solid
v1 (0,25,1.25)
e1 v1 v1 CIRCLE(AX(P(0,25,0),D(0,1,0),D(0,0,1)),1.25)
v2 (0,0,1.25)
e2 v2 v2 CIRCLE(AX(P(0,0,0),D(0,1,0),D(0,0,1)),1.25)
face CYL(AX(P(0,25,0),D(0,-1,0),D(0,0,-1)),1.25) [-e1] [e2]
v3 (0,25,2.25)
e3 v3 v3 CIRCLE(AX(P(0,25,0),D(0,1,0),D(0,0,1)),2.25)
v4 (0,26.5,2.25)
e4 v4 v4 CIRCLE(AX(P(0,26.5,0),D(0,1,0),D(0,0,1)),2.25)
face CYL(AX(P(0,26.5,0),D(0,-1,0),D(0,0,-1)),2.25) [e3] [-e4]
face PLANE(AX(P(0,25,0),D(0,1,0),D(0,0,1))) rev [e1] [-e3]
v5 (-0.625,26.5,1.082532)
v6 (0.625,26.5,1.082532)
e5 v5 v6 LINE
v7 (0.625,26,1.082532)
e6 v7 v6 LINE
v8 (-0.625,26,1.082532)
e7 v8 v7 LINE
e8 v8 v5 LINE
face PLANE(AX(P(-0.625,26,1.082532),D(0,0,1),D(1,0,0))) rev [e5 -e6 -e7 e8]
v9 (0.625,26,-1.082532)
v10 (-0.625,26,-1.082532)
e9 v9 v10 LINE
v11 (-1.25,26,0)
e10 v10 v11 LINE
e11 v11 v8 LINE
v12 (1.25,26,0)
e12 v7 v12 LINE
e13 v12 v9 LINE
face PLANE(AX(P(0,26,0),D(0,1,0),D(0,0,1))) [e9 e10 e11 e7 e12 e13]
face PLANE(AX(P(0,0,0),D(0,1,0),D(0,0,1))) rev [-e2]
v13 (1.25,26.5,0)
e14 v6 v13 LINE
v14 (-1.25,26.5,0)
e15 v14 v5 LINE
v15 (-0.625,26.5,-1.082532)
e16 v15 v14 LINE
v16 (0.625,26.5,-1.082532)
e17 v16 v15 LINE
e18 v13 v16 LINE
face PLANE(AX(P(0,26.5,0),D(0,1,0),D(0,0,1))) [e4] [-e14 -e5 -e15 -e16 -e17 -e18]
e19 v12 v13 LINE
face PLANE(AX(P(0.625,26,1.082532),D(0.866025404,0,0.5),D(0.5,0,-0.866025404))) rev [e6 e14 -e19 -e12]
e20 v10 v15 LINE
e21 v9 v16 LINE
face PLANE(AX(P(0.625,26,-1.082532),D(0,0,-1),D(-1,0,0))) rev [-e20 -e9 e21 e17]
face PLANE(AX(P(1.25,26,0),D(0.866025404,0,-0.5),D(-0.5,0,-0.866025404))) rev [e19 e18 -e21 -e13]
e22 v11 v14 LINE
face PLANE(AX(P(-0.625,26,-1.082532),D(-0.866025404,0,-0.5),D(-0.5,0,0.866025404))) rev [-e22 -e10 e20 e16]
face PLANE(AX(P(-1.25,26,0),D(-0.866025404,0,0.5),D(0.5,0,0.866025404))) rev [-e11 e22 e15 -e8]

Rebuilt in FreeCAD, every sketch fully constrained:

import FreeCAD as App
import Part
import Sketcher

V = App.Vector
Q = App.Units.Quantity


def add_polygon(sketch, points):
    """Adds a closed chain of lines whose ends are joined by coincident constraints."""
    first, n = sketch.GeometryCount, len(points)
    for a, b in zip(points, points[1:] + points[:1]):
        sketch.addGeometry(Part.LineSegment(App.Vector(*a, 0), App.Vector(*b, 0)), False)
    for i in range(n):
        sketch.addConstraint(Sketcher.Constraint("Coincident", first + i, 2, first + (i + 1) % n, 1))

doc = App.newDocument("Part")
body = doc.addObject("PartDesign::Body", "Body")

# Sketch on XZ plane
sketch1 = doc.addObject("Sketcher::SketchObject", "Sketch")
body.addObject(sketch1)
sketch1.AttachmentSupport = (doc.XZ_Plane, [""])
sketch1.MapMode = "FlatFace"
sketch1.addGeometry(Part.Circle(V(0, 0, 0), V(0, 0, 1), 1.2), False)
sketch1.addConstraint([
    Sketcher.Constraint("Coincident", 0, 3, -1, 1),
    Sketcher.Constraint("Diameter", 0, Q("2.5 mm")),
])
pad1 = doc.addObject("PartDesign::Pad", "Pad")
body.addObject(pad1)
pad1.Profile = sketch1
pad1.Length = 25
pad1.Reversed = True

# Sketch on XZ plane
sketch2 = doc.addObject("Sketcher::SketchObject", "Sketch001")
body.addObject(sketch2)
sketch2.AttachmentSupport = (doc.XZ_Plane, [""])
sketch2.MapMode = "FlatFace"
sketch2.AttachmentOffset = App.Placement(V(0, 0, -25), App.Rotation())
sketch2.addGeometry(Part.Circle(V(0, 0, 0), V(0, 0, 1), 2.2), False)
sketch2.addConstraint([
    Sketcher.Constraint("Coincident", 0, 3, -1, 1),
    Sketcher.Constraint("Diameter", 0, Q("4.5 mm")),
])
pad2 = doc.addObject("PartDesign::Pad", "Pad001")
body.addObject(pad2)
pad2.Profile = sketch2
pad2.Length = 1.5
pad2.Reversed = True

# Sketch on XZ plane
sketch3 = doc.addObject("Sketcher::SketchObject", "Sketch002")
body.addObject(sketch3)
sketch3.AttachmentSupport = (doc.XZ_Plane, [""])
sketch3.MapMode = "FlatFace"
sketch3.AttachmentOffset = App.Placement(V(0, 0, -26.5), App.Rotation())
add_polygon(sketch3, [(1.2, 0), (0.6, -1.1), (-0.6, -1.1), (-1.2, 0), (-0.6, 1.1), (0.6, 1.1)])  # lines 0-5
sketch3.addConstraint([
    Sketcher.Constraint("Horizontal", 1),
    Sketcher.Constraint("Horizontal", 4),
    Sketcher.Constraint("Symmetric", 0, 2, 3, 2, -1, 1),
    Sketcher.Constraint("Symmetric", 2, 2, 5, 2, -1, 1),
    Sketcher.Constraint("PointOnObject", 2, 2, -1),
    Sketcher.Constraint("Parallel", 2, 5),
    Sketcher.Constraint("Vertical", 1, 2, 3, 2),
    Sketcher.Constraint("Angle", 0, Q("-120 deg")),
    Sketcher.Constraint("DistanceX", 1, 2, 1, 1, Q("1.25 mm")),
    Sketcher.Constraint("DistanceX", 2, 2, 5, 2, Q("2.5 mm")),
])
pocket1 = doc.addObject("PartDesign::Pocket", "Pocket")
body.addObject(pocket1)
pocket1.Profile = sketch3
pocket1.Length = 0.5
pocket1.Reversed = True

doc.recompute()
